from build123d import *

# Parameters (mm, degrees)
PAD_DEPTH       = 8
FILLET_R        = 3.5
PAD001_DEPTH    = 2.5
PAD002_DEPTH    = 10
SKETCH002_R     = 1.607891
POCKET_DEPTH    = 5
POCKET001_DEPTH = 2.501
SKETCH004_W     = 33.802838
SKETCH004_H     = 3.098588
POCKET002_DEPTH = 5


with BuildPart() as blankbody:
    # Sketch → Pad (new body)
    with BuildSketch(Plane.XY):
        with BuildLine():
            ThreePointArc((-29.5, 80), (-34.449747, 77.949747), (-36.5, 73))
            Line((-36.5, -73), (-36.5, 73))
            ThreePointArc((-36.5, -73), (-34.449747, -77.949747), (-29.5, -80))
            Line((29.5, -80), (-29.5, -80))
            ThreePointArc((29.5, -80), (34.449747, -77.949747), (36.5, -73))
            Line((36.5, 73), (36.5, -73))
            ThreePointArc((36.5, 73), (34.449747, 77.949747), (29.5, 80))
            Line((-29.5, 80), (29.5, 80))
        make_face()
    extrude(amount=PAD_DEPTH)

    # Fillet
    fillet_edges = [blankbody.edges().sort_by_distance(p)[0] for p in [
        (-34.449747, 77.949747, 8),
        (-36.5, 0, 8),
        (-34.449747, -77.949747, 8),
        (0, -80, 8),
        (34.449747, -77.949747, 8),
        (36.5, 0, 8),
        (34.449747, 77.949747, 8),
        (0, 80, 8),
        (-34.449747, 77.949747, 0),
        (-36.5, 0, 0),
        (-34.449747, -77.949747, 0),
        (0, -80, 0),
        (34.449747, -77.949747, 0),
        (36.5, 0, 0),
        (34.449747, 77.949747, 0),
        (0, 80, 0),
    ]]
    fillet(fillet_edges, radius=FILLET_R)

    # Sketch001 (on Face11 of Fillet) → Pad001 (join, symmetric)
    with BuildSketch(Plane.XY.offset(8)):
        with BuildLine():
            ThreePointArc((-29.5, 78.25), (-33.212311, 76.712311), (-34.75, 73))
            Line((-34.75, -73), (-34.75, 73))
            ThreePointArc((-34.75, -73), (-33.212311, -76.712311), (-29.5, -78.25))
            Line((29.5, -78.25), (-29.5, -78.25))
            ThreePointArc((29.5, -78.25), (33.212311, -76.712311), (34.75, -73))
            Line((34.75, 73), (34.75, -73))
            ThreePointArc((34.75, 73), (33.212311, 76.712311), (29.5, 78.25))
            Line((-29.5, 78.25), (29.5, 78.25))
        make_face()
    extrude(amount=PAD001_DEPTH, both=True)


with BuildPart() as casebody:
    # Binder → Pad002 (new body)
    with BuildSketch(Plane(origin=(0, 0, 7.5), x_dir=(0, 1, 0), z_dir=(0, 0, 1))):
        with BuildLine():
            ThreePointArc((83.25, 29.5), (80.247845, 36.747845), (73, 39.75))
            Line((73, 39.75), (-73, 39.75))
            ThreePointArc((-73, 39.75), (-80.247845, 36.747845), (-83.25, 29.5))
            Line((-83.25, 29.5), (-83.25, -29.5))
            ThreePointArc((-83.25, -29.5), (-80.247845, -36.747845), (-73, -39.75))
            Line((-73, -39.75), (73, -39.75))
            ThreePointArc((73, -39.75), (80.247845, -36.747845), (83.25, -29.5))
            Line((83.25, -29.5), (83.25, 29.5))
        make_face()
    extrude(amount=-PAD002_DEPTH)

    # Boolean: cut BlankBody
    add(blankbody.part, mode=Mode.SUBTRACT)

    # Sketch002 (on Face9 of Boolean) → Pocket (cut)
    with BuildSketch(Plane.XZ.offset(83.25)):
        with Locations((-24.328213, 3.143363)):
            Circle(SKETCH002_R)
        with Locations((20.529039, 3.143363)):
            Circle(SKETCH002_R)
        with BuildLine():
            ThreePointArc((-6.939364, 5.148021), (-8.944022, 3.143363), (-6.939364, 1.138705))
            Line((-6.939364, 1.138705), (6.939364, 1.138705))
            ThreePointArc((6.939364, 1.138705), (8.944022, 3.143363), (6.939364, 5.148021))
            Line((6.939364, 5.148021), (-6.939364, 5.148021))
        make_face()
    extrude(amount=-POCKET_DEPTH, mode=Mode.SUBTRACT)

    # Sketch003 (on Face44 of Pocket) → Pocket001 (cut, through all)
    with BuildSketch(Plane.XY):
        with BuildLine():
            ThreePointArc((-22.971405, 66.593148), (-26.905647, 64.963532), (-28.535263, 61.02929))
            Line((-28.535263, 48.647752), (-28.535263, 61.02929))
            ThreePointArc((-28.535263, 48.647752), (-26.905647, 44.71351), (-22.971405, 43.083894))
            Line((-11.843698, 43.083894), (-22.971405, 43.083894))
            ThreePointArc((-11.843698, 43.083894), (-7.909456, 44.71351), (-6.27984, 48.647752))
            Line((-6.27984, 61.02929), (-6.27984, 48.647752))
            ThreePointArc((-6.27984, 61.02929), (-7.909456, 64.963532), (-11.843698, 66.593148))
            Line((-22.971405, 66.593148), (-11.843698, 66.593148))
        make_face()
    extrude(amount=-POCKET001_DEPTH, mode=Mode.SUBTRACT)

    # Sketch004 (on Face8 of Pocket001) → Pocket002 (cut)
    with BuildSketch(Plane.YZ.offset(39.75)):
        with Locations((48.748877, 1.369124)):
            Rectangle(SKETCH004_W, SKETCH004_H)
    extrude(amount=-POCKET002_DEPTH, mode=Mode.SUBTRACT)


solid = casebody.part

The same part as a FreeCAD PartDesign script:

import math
import FreeCAD as App
import Part
import Sketcher
from FreeCAD import Vector


def edges_at(feature, points):
    """Names of the edges that pass closest to the given points."""
    edges = feature.Shape.Edges
    near = lambda p: min(range(len(edges)), key=lambda i: edges[i].distToShape(Part.Vertex(*p))[0])
    return sorted({f"Edge{near(p) + 1}" for p in points})


def add_polygon(sketch, points):
    """Adds a closed chain of lines whose ends are joined by coincident constraints."""
    first, n = sketch.GeometryCount, len(points)
    for a, b in zip(points, points[1:] + points[:1]):
        sketch.addGeometry(Part.LineSegment(App.Vector(*a, 0), App.Vector(*b, 0)), False)
    for i in range(n):
        sketch.addConstraint(Sketcher.Constraint("Coincident", first + i, 2, first + (i + 1) % n, 1))

doc = App.newDocument("Part")
params = doc.addObject("Spreadsheet::Sheet", "Params")
for row, (alias, value) in enumerate([
    ("sketch1_radius", "7.000002 mm"),
    ("sketch1_width", "59 mm"),
    ("sketch1_height", "146 mm"),
    ("pad1_length", "8 mm"),
    ("fillet_radius", "3.5 mm"),
    ("sketch2_width", "59 mm"),
    ("sketch2_height", "146 mm"),
    ("sketch2_radius", "5.249999 mm"),
    ("pad2_length", "5 mm"),
    ("sketch3_width", "59 mm"),
    ("sketch3_height", "146 mm"),
    ("sketch3_radius", "10.249998 mm"),
    ("pad3_length", "10 mm"),
    ("pocket1_length", "5 mm"),
    ("pocket3_length", "5 mm"),
], start=1):
    params.set(f"A{row}", alias)
    params.set(f"B{row}", "=" + value)
    params.setAlias(f"B{row}", alias)

body = doc.addObject("PartDesign::Body", "Body")

sketch1 = doc.addObject("Sketcher::SketchObject", "Sketch")
body.addObject(sketch1)
sketch1.AttachmentSupport = (doc.XY_Plane, [""])
sketch1.MapMode = "FlatFace"
sketch1.addGeometry(Part.ArcOfCircle(Part.Circle(Vector(-29.499998, 72.999998, 0), Vector(0, 0, 1), 7.000002), math.radians(90.000013), math.radians(179.999987)), False)
sketch1.addGeometry(Part.LineSegment(Vector(-36.5, 73, 0), Vector(-36.5, -73, 0)), False)
sketch1.addGeometry(Part.ArcOfCircle(Part.Circle(Vector(-29.499998, -72.999998, 0), Vector(0, 0, 1), 7.000002), math.radians(-179.999987), math.radians(-90.000013)), False)
sketch1.addGeometry(Part.LineSegment(Vector(-29.5, -80, 0), Vector(29.5, -80, 0)), False)
sketch1.addGeometry(Part.ArcOfCircle(Part.Circle(Vector(29.499998, -72.999998, 0), Vector(0, 0, 1), 7.000002), math.radians(-89.999987), math.radians(-0.000013)), False)
sketch1.addGeometry(Part.LineSegment(Vector(36.5, -73, 0), Vector(36.5, 73, 0)), False)
sketch1.addGeometry(Part.ArcOfCircle(Part.Circle(Vector(29.499998, 72.999998, 0), Vector(0, 0, 1), 7.000002), math.radians(0.000013), math.radians(89.999987)), False)
sketch1.addGeometry(Part.LineSegment(Vector(29.5, 80, 0), Vector(-29.5, 80, 0)), False)
sketch1.addConstraint(Sketcher.Constraint("Tangent", 0, 2, 1, 1))
sketch1.addConstraint(Sketcher.Constraint("Tangent", 1, 2, 2, 1))
sketch1.addConstraint(Sketcher.Constraint("Tangent", 2, 2, 3, 1))
sketch1.addConstraint(Sketcher.Constraint("Tangent", 3, 2, 4, 1))
sketch1.addConstraint(Sketcher.Constraint("Tangent", 4, 2, 5, 1))
sketch1.addConstraint(Sketcher.Constraint("Tangent", 5, 2, 6, 1))
sketch1.addConstraint(Sketcher.Constraint("Tangent", 6, 2, 7, 1))
sketch1.addConstraint(Sketcher.Constraint("Tangent", 7, 2, 0, 1))
sketch1.addConstraint(Sketcher.Constraint("Vertical", 1))
sketch1.addConstraint(Sketcher.Constraint("Horizontal", 3))
sketch1.addConstraint(Sketcher.Constraint("Vertical", 5))
sketch1.addConstraint(Sketcher.Constraint("Horizontal", 7))
sketch1.addConstraint(Sketcher.Constraint("Equal", 0, 2))
sketch1.addConstraint(Sketcher.Constraint("Equal", 2, 4))
sketch1.addConstraint(Sketcher.Constraint("Equal", 4, 6))
sketch1.addConstraint(Sketcher.Constraint("Symmetric", 0, 3, 4, 3, -1, 1))
sketch1.addConstraint(Sketcher.Constraint("Radius", 0, 7.000002))
sketch1.addConstraint(Sketcher.Constraint("DistanceX", 3, 1, 3, 2, 59.0))
sketch1.addConstraint(Sketcher.Constraint("DistanceY", 1, 2, 1, 1, 146.0))
sketch1.setExpression("Constraints[16]", "Params.sketch1_radius")
sketch1.setExpression("Constraints[17]", "Params.sketch1_width")
sketch1.setExpression("Constraints[18]", "Params.sketch1_height")
pad1 = doc.addObject("PartDesign::Pad", "Pad")
body.addObject(pad1)
pad1.Profile = sketch1
pad1.setExpression("Length", "Params.pad1_length")
doc.recompute()

fillet = doc.addObject("PartDesign::Fillet", "Fillet")
body.addObject(fillet)
fillet.Base = (pad1, edges_at(pad1, [
    (-34.45, 77.95, 8),
    (-36.5, 0, 8),
    (-34.45, -77.95, 8),
    (0, -80, 8),
    (34.45, -77.95, 8),
    (36.5, 0, 8),
    (34.45, 77.95, 8),
    (0, 80, 8),
    (-34.45, 77.95, 0),
    (-36.5, 0, 0),
    (-34.45, -77.95, 0),
    (0, -80, 0),
    (34.45, -77.95, 0),
    (36.5, 0, 0),
    (34.45, 77.95, 0),
    (0, 80, 0),
]))
fillet.setExpression("Radius", "Params.fillet_radius")

sketch2 = doc.addObject("Sketcher::SketchObject", "Sketch001")
body.addObject(sketch2)
sketch2.AttachmentSupport = (doc.XY_Plane, [""])
sketch2.MapMode = "FlatFace"
sketch2.AttachmentOffset = App.Placement(Vector(0, 0, 8), App.Rotation())
sketch2.addGeometry(Part.ArcOfCircle(Part.Circle(Vector(-29.500001, 73.000001, 0), Vector(0, 0, 1), 5.249999), math.radians(89.999985), math.radians(180.000015)), False)
sketch2.addGeometry(Part.LineSegment(Vector(-34.75, 73, 0), Vector(-34.75, -73, 0)), False)
sketch2.addGeometry(Part.ArcOfCircle(Part.Circle(Vector(-29.500001, -73.000001, 0), Vector(0, 0, 1), 5.249999), math.radians(179.999985), math.radians(270.000015)), False)
sketch2.addGeometry(Part.LineSegment(Vector(-29.5, -78.25, 0), Vector(29.5, -78.25, 0)), False)
sketch2.addGeometry(Part.ArcOfCircle(Part.Circle(Vector(29.500001, -73.000001, 0), Vector(0, 0, 1), 5.249999), math.radians(-90.000015), math.radians(0.000015)), False)
sketch2.addGeometry(Part.LineSegment(Vector(34.75, -73, 0), Vector(34.75, 73, 0)), False)
sketch2.addGeometry(Part.ArcOfCircle(Part.Circle(Vector(29.500001, 73.000001, 0), Vector(0, 0, 1), 5.249999), math.radians(-0.000015), math.radians(90.000015)), False)
sketch2.addGeometry(Part.LineSegment(Vector(29.5, 78.25, 0), Vector(-29.5, 78.25, 0)), False)
sketch2.addConstraint(Sketcher.Constraint("Tangent", 0, 2, 1, 1))
sketch2.addConstraint(Sketcher.Constraint("Tangent", 1, 2, 2, 1))
sketch2.addConstraint(Sketcher.Constraint("Tangent", 2, 2, 3, 1))
sketch2.addConstraint(Sketcher.Constraint("Tangent", 3, 2, 4, 1))
sketch2.addConstraint(Sketcher.Constraint("Tangent", 4, 2, 5, 1))
sketch2.addConstraint(Sketcher.Constraint("Tangent", 5, 2, 6, 1))
sketch2.addConstraint(Sketcher.Constraint("Tangent", 6, 2, 7, 1))
sketch2.addConstraint(Sketcher.Constraint("Tangent", 7, 2, 0, 1))
sketch2.addConstraint(Sketcher.Constraint("Vertical", 1))
sketch2.addConstraint(Sketcher.Constraint("Horizontal", 3))
sketch2.addConstraint(Sketcher.Constraint("Vertical", 5))
sketch2.addConstraint(Sketcher.Constraint("Horizontal", 7))
sketch2.addConstraint(Sketcher.Constraint("Equal", 0, 2))
sketch2.addConstraint(Sketcher.Constraint("Equal", 2, 4))
sketch2.addConstraint(Sketcher.Constraint("Equal", 4, 6))
sketch2.addConstraint(Sketcher.Constraint("Symmetric", 0, 3, 4, 3, -1, 1))
sketch2.addConstraint(Sketcher.Constraint("DistanceX", 3, 1, 3, 2, 59.0))
sketch2.addConstraint(Sketcher.Constraint("DistanceY", 1, 2, 1, 1, 146.0))
sketch2.addConstraint(Sketcher.Constraint("Radius", 0, 5.249999))
sketch2.setExpression("Constraints[16]", "Params.sketch2_width")
sketch2.setExpression("Constraints[17]", "Params.sketch2_height")
sketch2.setExpression("Constraints[18]", "Params.sketch2_radius")
pad2 = doc.addObject("PartDesign::Pad", "Pad001")
body.addObject(pad2)
pad2.Profile = sketch2
pad2.setExpression("Length", "Params.pad2_length")
pad2.Midplane = True
body2 = doc.addObject("PartDesign::Body", "Body001")

sketch3 = doc.addObject("Sketcher::SketchObject", "Sketch002")
body2.addObject(sketch3)
sketch3.AttachmentSupport = (doc.getObject("XY_Plane001"), [""])
sketch3.MapMode = "FlatFace"
sketch3.AttachmentOffset = App.Placement(Vector(0, 0, 7.5), App.Rotation())
sketch3.addGeometry(Part.ArcOfCircle(Part.Circle(Vector(-29.500002, 73.000002, 0), Vector(0, 0, 1), 10.249998), math.radians(89.999991), math.radians(180.000009)), False)
sketch3.addGeometry(Part.LineSegment(Vector(-39.75, 73, 0), Vector(-39.75, -73, 0)), False)
sketch3.addGeometry(Part.ArcOfCircle(Part.Circle(Vector(-29.500002, -73.000002, 0), Vector(0, 0, 1), 10.249998), math.radians(179.999991), math.radians(270.000009)), False)
sketch3.addGeometry(Part.LineSegment(Vector(-29.5, -83.25, 0), Vector(29.5, -83.25, 0)), False)
sketch3.addGeometry(Part.ArcOfCircle(Part.Circle(Vector(29.500002, -73.000002, 0), Vector(0, 0, 1), 10.249998), math.radians(-90.000009), math.radians(0.000009)), False)
sketch3.addGeometry(Part.LineSegment(Vector(39.75, -73, 0), Vector(39.75, 73, 0)), False)
sketch3.addGeometry(Part.ArcOfCircle(Part.Circle(Vector(29.500002, 73.000002, 0), Vector(0, 0, 1), 10.249998), math.radians(-0.000009), math.radians(90.000009)), False)
sketch3.addGeometry(Part.LineSegment(Vector(29.5, 83.25, 0), Vector(-29.5, 83.25, 0)), False)
sketch3.addConstraint(Sketcher.Constraint("Tangent", 0, 2, 1, 1))
sketch3.addConstraint(Sketcher.Constraint("Tangent", 1, 2, 2, 1))
sketch3.addConstraint(Sketcher.Constraint("Tangent", 2, 2, 3, 1))
sketch3.addConstraint(Sketcher.Constraint("Tangent", 3, 2, 4, 1))
sketch3.addConstraint(Sketcher.Constraint("Tangent", 4, 2, 5, 1))
sketch3.addConstraint(Sketcher.Constraint("Tangent", 5, 2, 6, 1))
sketch3.addConstraint(Sketcher.Constraint("Tangent", 6, 2, 7, 1))
sketch3.addConstraint(Sketcher.Constraint("Tangent", 7, 2, 0, 1))
sketch3.addConstraint(Sketcher.Constraint("Vertical", 1))
sketch3.addConstraint(Sketcher.Constraint("Horizontal", 3))
sketch3.addConstraint(Sketcher.Constraint("Vertical", 5))
sketch3.addConstraint(Sketcher.Constraint("Horizontal", 7))
sketch3.addConstraint(Sketcher.Constraint("Equal", 0, 2))
sketch3.addConstraint(Sketcher.Constraint("Equal", 2, 4))
sketch3.addConstraint(Sketcher.Constraint("Equal", 4, 6))
sketch3.addConstraint(Sketcher.Constraint("Symmetric", 0, 3, 4, 3, -1, 1))
sketch3.addConstraint(Sketcher.Constraint("DistanceX", 3, 1, 3, 2, 59.0))
sketch3.addConstraint(Sketcher.Constraint("DistanceY", 1, 2, 1, 1, 146.0))
sketch3.addConstraint(Sketcher.Constraint("Radius", 0, 10.249998))
sketch3.setExpression("Constraints[16]", "Params.sketch3_width")
sketch3.setExpression("Constraints[17]", "Params.sketch3_height")
sketch3.setExpression("Constraints[18]", "Params.sketch3_radius")
pad3 = doc.addObject("PartDesign::Pad", "Pad002")
body2.addObject(pad3)
pad3.Profile = sketch3
pad3.setExpression("Length", "Params.pad3_length")
pad3.Reversed = True
doc.recompute()

boolean = doc.addObject("PartDesign::Boolean", "Boolean")
body2.addObject(boolean)
boolean.Type = "Cut"
boolean.addObjects([body])

sketch4 = doc.addObject("Sketcher::SketchObject", "Sketch003")
body2.addObject(sketch4)
sketch4.AttachmentSupport = (doc.getObject("XZ_Plane001"), [""])
sketch4.MapMode = "FlatFace"
sketch4.AttachmentOffset = App.Placement(Vector(0, 0, 83.25), App.Rotation())
sketch4.addGeometry(Part.Circle(Vector(-24.328213, 3.143363, 0), Vector(0, 0, 1), 1.607891), False)
sketch4.addGeometry(Part.Circle(Vector(20.529039, 3.143363, 0), Vector(0, 0, 1), 1.607891), False)
sketch4.addGeometry(Part.ArcOfCircle(Part.Circle(Vector(-6.939364, 3.143363, 0), Vector(0, 0, 1), 2.004658), math.radians(90), math.radians(270)), False)
sketch4.addGeometry(Part.LineSegment(Vector(-6.939364, 1.138705, 0), Vector(6.939364, 1.138705, 0)), False)
sketch4.addGeometry(Part.ArcOfCircle(Part.Circle(Vector(6.939364, 3.143363, 0), Vector(0, 0, 1), 2.004658), math.radians(-90), math.radians(90)), False)
sketch4.addGeometry(Part.LineSegment(Vector(6.939364, 5.148021, 0), Vector(-6.939364, 5.148021, 0)), False)
sketch4.addConstraint(Sketcher.Constraint("Tangent", 2, 2, 3, 1))
sketch4.addConstraint(Sketcher.Constraint("Tangent", 3, 2, 4, 1))
sketch4.addConstraint(Sketcher.Constraint("Tangent", 4, 2, 5, 1))
sketch4.addConstraint(Sketcher.Constraint("Tangent", 5, 2, 2, 1))
sketch4.addConstraint(Sketcher.Constraint("Horizontal", 3))
sketch4.addConstraint(Sketcher.Constraint("Horizontal", 5))
sketch4.addConstraint(Sketcher.Constraint("Equal", 0, 1))
sketch4.addConstraint(Sketcher.Constraint("Horizontal", 0, 3, 1, 3))
sketch4.addConstraint(Sketcher.Constraint("Horizontal", 1, 3, 2, 3))
sketch4.addConstraint(Sketcher.Constraint("Diameter", 0, 3.215782))
sketch4.addConstraint(Sketcher.Constraint("Radius", 2, 2.004658))
sketch4.addConstraint(Sketcher.Constraint("DistanceX", 3, 1, 3, 2, 13.878728))
sketch4.addConstraint(Sketcher.Constraint("DistanceX", -1, 1, 1, 3, 20.529039))
sketch4.addConstraint(Sketcher.Constraint("DistanceY", -1, 1, 4, 2, 5.148021))
sketch4.addConstraint(Sketcher.Constraint("DistanceX", 0, 3, 2, 3, 17.388849))
sketch4.addConstraint(Sketcher.Constraint("DistanceX", 0, 3, -1, 1, 24.328213))
pocket1 = doc.addObject("PartDesign::Pocket", "Pocket")
body2.addObject(pocket1)
pocket1.Profile = sketch4
pocket1.setExpression("Length", "Params.pocket1_length")

sketch5 = doc.addObject("Sketcher::SketchObject", "Sketch004")
body2.addObject(sketch5)
sketch5.AttachmentSupport = (doc.getObject("XY_Plane001"), [""])
sketch5.MapMode = "FlatFace"
sketch5.addGeometry(Part.ArcOfCircle(Part.Circle(Vector(-22.971406, 61.029291, 0), Vector(0, 0, 1), 5.563857), math.radians(89.99999), math.radians(180.00001)), False)
sketch5.addGeometry(Part.LineSegment(Vector(-28.535263, 61.02929, 0), Vector(-28.535263, 48.647752, 0)), False)
sketch5.addGeometry(Part.ArcOfCircle(Part.Circle(Vector(-22.971406, 48.647751, 0), Vector(0, 0, 1), 5.563857), math.radians(179.99999), math.radians(270.00001)), False)
sketch5.addGeometry(Part.LineSegment(Vector(-22.971405, 43.083894, 0), Vector(-11.843698, 43.083894, 0)), False)
sketch5.addGeometry(Part.ArcOfCircle(Part.Circle(Vector(-11.843697, 48.647751, 0), Vector(0, 0, 1), 5.563857), math.radians(-90.00001), math.radians(0.00001)), False)
sketch5.addGeometry(Part.LineSegment(Vector(-6.27984, 48.647752, 0), Vector(-6.27984, 61.02929, 0)), False)
sketch5.addGeometry(Part.ArcOfCircle(Part.Circle(Vector(-11.843697, 61.029291, 0), Vector(0, 0, 1), 5.563857), math.radians(-0.00001), math.radians(90.00001)), False)
sketch5.addGeometry(Part.LineSegment(Vector(-11.843698, 66.593148, 0), Vector(-22.971405, 66.593148, 0)), False)
sketch5.addConstraint(Sketcher.Constraint("Tangent", 0, 2, 1, 1))
sketch5.addConstraint(Sketcher.Constraint("Tangent", 1, 2, 2, 1))
sketch5.addConstraint(Sketcher.Constraint("Tangent", 2, 2, 3, 1))
sketch5.addConstraint(Sketcher.Constraint("Tangent", 3, 2, 4, 1))
sketch5.addConstraint(Sketcher.Constraint("Tangent", 4, 2, 5, 1))
sketch5.addConstraint(Sketcher.Constraint("Tangent", 5, 2, 6, 1))
sketch5.addConstraint(Sketcher.Constraint("Tangent", 6, 2, 7, 1))
sketch5.addConstraint(Sketcher.Constraint("Tangent", 7, 2, 0, 1))
sketch5.addConstraint(Sketcher.Constraint("Vertical", 1))
sketch5.addConstraint(Sketcher.Constraint("Horizontal", 3))
sketch5.addConstraint(Sketcher.Constraint("Vertical", 5))
sketch5.addConstraint(Sketcher.Constraint("Horizontal", 7))
sketch5.addConstraint(Sketcher.Constraint("Equal", 0, 2))
sketch5.addConstraint(Sketcher.Constraint("Equal", 2, 4))
sketch5.addConstraint(Sketcher.Constraint("Equal", 4, 6))
sketch5.addConstraint(Sketcher.Constraint("Radius", 0, 5.563857))
sketch5.addConstraint(Sketcher.Constraint("DistanceY", 1, 2, 1, 1, 12.381538))
sketch5.addConstraint(Sketcher.Constraint("DistanceX", 3, 1, 3, 2, 11.127707))
sketch5.addConstraint(Sketcher.Constraint("DistanceY", -1, 1, 0, 3, 61.029291))
sketch5.addConstraint(Sketcher.Constraint("DistanceX", 4, 2, -1, 1, 6.27984))
pocket2 = doc.addObject("PartDesign::Pocket", "Pocket001")
body2.addObject(pocket2)
pocket2.Profile = sketch5
pocket2.Type = "ThroughAll"

sketch6 = doc.addObject("Sketcher::SketchObject", "Sketch005")
body2.addObject(sketch6)
sketch6.AttachmentSupport = (doc.getObject("YZ_Plane001"), [""])
sketch6.MapMode = "FlatFace"
sketch6.AttachmentOffset = App.Placement(Vector(0, 0, 39.75), App.Rotation())
add_polygon(sketch6, [(31.847458, 2.918418), (31.847458, -0.18017), (65.650296, -0.18017), (65.650296, 2.918418)])
sketch6.addConstraint(Sketcher.Constraint("Vertical", 0))
sketch6.addConstraint(Sketcher.Constraint("Horizontal", 1))
sketch6.addConstraint(Sketcher.Constraint("Vertical", 2))
sketch6.addConstraint(Sketcher.Constraint("Horizontal", 3))
sketch6.addConstraint(Sketcher.Constraint("DistanceX", 1, 1, 1, 2, 33.802838))
sketch6.addConstraint(Sketcher.Constraint("DistanceY", 0, 2, 0, 1, 3.098588))
sketch6.addConstraint(Sketcher.Constraint("DistanceY", 0, 2, -1, 1, 0.18017))
sketch6.addConstraint(Sketcher.Constraint("DistanceX", -1, 1, 0, 2, 31.847458))
pocket3 = doc.addObject("PartDesign::Pocket", "Pocket002")
body2.addObject(pocket3)
pocket3.Profile = sketch6
pocket3.setExpression("Length", "Params.pocket3_length")

doc.recompute()
